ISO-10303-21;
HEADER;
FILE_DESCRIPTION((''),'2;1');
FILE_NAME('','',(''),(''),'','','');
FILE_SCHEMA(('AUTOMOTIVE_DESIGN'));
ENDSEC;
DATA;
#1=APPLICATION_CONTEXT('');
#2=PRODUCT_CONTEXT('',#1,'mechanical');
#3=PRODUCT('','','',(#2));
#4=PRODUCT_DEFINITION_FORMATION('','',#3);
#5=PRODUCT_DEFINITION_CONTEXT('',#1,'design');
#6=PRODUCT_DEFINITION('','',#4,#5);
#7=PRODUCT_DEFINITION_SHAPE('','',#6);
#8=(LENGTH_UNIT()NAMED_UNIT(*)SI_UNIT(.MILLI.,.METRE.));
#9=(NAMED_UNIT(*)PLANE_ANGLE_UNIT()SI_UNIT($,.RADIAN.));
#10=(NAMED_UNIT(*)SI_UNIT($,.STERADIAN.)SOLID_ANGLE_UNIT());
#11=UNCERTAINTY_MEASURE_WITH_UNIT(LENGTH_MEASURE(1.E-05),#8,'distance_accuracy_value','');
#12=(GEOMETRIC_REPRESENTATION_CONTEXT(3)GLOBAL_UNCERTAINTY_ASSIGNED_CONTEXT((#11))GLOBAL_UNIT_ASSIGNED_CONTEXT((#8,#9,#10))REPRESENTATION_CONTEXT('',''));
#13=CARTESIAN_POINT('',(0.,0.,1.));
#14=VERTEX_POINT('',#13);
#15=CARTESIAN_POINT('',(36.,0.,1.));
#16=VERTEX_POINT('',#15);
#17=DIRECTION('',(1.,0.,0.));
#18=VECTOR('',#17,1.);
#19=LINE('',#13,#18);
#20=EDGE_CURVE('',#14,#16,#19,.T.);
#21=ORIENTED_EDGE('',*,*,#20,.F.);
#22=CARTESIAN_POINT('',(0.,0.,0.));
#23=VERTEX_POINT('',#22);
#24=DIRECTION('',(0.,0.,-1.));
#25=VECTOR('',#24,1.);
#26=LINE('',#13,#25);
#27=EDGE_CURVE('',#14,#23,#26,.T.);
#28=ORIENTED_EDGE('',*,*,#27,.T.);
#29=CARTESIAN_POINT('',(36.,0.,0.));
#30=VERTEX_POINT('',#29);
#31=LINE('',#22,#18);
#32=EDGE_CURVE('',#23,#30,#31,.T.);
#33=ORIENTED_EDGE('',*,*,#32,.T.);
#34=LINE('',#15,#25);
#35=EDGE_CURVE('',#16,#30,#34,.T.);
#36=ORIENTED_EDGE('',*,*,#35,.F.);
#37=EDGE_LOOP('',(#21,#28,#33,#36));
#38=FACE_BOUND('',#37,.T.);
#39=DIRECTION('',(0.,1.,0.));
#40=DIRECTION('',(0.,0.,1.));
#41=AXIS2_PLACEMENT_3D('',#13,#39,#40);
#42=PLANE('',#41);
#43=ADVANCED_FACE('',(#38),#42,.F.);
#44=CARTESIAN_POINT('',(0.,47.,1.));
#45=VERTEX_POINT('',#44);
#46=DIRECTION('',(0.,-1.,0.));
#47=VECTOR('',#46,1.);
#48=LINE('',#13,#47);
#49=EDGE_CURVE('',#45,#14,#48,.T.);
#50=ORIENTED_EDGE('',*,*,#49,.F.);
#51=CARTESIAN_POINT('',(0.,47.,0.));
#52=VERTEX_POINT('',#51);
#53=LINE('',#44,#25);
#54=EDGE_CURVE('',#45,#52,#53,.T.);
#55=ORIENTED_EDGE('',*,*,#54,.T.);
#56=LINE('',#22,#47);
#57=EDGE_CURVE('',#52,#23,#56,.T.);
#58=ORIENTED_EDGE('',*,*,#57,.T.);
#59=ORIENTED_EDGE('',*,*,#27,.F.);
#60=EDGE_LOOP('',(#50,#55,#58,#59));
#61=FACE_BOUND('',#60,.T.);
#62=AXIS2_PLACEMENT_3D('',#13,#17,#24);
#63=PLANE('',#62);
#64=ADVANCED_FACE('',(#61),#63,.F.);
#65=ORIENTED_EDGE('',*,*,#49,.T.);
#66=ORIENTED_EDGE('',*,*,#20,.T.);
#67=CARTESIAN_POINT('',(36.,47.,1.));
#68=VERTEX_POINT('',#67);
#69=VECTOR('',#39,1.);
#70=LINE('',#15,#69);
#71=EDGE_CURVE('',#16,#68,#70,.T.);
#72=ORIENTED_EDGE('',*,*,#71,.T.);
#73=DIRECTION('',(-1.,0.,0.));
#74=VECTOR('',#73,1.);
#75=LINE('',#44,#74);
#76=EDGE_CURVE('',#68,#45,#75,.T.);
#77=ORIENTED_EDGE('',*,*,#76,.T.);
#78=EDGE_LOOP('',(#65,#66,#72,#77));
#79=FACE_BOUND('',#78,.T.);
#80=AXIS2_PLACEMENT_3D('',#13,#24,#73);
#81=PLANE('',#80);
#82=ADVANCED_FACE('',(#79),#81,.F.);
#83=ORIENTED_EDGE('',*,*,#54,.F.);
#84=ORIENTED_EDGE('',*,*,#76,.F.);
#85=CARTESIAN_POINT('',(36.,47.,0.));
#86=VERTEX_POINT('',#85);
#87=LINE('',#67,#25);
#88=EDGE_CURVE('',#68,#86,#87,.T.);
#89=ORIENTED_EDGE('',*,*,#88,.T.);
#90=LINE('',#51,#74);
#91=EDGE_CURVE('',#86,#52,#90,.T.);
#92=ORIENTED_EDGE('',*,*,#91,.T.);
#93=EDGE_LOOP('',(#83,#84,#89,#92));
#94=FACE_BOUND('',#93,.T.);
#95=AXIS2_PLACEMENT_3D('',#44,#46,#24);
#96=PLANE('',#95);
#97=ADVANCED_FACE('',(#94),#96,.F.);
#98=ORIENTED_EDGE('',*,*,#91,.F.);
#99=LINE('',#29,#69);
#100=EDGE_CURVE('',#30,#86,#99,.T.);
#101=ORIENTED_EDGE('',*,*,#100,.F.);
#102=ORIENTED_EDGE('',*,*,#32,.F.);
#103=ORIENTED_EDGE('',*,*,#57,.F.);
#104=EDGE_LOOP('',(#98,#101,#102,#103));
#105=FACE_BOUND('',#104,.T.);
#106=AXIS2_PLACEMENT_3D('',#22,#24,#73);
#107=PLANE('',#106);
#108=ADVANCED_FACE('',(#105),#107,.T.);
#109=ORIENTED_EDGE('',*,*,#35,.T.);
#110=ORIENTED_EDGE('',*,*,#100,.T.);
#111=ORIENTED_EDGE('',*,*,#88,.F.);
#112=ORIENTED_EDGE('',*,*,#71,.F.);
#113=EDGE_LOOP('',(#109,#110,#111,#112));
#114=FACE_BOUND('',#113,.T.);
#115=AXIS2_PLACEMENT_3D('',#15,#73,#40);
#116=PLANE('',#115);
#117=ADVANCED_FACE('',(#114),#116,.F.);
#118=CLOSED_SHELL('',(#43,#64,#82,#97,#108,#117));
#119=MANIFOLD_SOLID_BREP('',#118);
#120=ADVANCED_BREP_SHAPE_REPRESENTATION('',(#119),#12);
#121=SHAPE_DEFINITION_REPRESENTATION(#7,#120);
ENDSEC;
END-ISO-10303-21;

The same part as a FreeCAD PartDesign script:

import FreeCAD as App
import Part
import Sketcher

V = App.Vector


def add_polygon(sketch, points):
    """Adds a closed chain of lines whose ends are joined by coincident constraints."""
    first, n = sketch.GeometryCount, len(points)
    for a, b in zip(points, points[1:] + points[:1]):
        sketch.addGeometry(Part.LineSegment(App.Vector(*a, 0), App.Vector(*b, 0)), False)
    for i in range(n):
        sketch.addConstraint(Sketcher.Constraint("Coincident", first + i, 2, first + (i + 1) % n, 1))

doc = App.newDocument("Part")
body = doc.addObject("PartDesign::Body", "Body")

sketch1 = body.newObject("Sketcher::SketchObject", "Sketch")
sketch1.AttachmentSupport = (doc.getObject("XY_Plane"), [""])
sketch1.MapMode = "FlatFace"
add_polygon(sketch1, [(0, 47), (0, 0), (36, 0), (36, 47)])
sketch1.addConstraint(Sketcher.Constraint("Vertical", 0))
sketch1.addConstraint(Sketcher.Constraint("Horizontal", 1))
sketch1.addConstraint(Sketcher.Constraint("Vertical", 2))
sketch1.addConstraint(Sketcher.Constraint("Horizontal", 3))
sketch1.addConstraint(Sketcher.Constraint("Coincident", 0, 2, -1, 1))
sketch1.addConstraint(Sketcher.Constraint("DistanceX", 1, 1, 1, 2, 36.0))
sketch1.addConstraint(Sketcher.Constraint("DistanceY", 0, 2, 0, 1, 47.0))
pad1 = body.newObject("PartDesign::Pad", "Pad")
pad1.Profile = sketch1
pad1.Length = 1

doc.recompute()
